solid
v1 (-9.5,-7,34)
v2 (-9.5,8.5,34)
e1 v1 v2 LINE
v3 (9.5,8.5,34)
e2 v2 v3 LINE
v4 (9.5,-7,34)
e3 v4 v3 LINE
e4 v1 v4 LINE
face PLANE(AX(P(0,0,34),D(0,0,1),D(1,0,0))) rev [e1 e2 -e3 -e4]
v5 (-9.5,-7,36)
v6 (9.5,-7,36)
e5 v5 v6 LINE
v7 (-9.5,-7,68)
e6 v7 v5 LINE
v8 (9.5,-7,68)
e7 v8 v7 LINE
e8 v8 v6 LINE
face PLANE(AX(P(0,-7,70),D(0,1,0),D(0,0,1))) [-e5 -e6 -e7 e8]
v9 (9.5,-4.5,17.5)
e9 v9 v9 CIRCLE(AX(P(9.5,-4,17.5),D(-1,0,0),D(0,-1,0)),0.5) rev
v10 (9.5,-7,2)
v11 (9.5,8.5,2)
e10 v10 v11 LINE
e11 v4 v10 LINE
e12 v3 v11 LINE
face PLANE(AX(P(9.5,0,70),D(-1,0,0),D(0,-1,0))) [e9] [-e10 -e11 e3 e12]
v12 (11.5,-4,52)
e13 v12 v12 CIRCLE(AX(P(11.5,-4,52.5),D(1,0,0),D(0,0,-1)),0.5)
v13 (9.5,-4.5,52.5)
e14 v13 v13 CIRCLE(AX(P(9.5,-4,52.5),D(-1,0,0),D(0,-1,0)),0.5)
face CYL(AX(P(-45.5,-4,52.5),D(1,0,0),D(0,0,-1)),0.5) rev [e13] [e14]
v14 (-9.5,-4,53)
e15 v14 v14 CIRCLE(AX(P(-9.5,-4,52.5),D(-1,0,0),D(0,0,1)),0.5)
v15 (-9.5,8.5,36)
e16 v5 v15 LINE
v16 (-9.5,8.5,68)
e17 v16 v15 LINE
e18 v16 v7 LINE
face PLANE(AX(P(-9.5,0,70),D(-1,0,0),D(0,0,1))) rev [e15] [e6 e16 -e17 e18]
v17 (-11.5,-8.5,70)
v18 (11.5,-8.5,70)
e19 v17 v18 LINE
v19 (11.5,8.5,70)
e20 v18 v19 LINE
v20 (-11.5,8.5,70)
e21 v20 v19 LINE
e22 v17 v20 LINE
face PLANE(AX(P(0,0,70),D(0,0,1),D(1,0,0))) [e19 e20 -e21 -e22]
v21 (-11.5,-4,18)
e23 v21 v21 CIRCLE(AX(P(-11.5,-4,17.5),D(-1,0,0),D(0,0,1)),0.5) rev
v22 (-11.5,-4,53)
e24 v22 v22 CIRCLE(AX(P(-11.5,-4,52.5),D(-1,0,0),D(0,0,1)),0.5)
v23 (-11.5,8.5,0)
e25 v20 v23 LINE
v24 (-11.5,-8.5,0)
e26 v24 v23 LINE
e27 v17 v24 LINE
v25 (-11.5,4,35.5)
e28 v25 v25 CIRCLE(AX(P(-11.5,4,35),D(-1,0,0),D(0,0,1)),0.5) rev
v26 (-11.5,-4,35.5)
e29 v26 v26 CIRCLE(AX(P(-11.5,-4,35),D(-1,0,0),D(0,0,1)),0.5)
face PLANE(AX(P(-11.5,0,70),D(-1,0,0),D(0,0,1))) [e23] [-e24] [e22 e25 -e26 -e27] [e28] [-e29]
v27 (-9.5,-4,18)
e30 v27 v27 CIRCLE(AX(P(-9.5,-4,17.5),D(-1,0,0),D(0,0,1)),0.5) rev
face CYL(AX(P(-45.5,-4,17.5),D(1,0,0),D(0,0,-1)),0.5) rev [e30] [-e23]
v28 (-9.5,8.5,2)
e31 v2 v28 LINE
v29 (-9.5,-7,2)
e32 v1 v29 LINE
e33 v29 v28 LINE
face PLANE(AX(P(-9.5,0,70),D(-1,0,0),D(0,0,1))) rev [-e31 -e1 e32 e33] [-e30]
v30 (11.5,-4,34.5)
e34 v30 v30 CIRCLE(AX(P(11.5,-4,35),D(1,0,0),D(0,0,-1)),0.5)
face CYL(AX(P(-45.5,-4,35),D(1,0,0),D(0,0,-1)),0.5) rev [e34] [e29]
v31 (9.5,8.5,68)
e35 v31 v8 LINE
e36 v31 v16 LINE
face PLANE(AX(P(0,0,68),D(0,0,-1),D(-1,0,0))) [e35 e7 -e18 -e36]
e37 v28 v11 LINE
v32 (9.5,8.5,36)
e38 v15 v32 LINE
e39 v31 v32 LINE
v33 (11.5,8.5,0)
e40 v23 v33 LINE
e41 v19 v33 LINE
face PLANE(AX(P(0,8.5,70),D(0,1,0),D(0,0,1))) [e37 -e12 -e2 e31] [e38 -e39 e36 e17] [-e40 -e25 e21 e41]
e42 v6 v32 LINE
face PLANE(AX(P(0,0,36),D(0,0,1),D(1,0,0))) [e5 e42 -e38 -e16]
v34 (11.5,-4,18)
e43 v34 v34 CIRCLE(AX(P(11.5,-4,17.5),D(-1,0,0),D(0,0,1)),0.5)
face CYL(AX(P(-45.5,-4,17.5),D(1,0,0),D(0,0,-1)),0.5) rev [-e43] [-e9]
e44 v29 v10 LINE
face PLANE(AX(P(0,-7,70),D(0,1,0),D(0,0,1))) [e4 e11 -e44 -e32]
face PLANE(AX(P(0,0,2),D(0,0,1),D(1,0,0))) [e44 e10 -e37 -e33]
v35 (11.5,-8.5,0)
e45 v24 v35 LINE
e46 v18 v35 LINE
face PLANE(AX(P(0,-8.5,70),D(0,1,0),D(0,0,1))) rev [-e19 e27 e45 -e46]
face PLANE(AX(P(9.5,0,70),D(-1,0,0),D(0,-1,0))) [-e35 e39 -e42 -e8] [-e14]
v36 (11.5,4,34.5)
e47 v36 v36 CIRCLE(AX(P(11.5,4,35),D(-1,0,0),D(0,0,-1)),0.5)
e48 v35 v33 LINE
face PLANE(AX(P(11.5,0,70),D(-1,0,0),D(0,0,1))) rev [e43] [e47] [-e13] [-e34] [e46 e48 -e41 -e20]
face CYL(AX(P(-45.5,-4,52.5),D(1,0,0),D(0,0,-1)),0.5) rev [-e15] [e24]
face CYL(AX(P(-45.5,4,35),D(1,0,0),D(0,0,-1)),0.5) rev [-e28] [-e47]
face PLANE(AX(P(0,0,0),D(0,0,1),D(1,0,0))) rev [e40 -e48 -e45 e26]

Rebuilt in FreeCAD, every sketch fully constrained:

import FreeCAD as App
import Part
import Sketcher

V = App.Vector

doc = App.newDocument("Part")
body = doc.addObject("PartDesign::Body", "Body")

# Sketch on XY plane
sketch1 = body.newObject("Sketcher::SketchObject", "Sketch")
sketch1.AttachmentSupport = (doc.getObject("XY_Plane"), [""])
sketch1.MapMode = "FlatFace"
sketch1.addGeometry([
    Part.LineSegment(V(-11.5, 8.5, 0), V(-11.5, -8.5, 0)),  # 0
    Part.LineSegment(V(-11.5, -8.5, 0), V(11.5, -8.5, 0)),  # 1
    Part.LineSegment(V(11.5, -8.5, 0), V(11.5, 8.5, 0)),  # 2
    Part.LineSegment(V(11.5, 8.5, 0), V(9.5, 8.5, 0)),  # 3
    Part.LineSegment(V(9.5, 8.5, 0), V(9.5, -7, 0)),  # 4
    Part.LineSegment(V(9.5, -7, 0), V(-9.5, -7, 0)),  # 5
    Part.LineSegment(V(-9.5, -7, 0), V(-9.5, 8.5, 0)),  # 6
    Part.LineSegment(V(-9.5, 8.5, 0), V(-11.5, 8.5, 0)),  # 7
], False)
sketch1.addConstraint([
    Sketcher.Constraint("Coincident", 0, 2, 1, 1),
    Sketcher.Constraint("Coincident", 1, 2, 2, 1),
    Sketcher.Constraint("Coincident", 2, 2, 3, 1),
    Sketcher.Constraint("Coincident", 3, 2, 4, 1),
    Sketcher.Constraint("Coincident", 4, 2, 5, 1),
    Sketcher.Constraint("Coincident", 5, 2, 6, 1),
    Sketcher.Constraint("Coincident", 6, 2, 7, 1),
    Sketcher.Constraint("Coincident", 7, 2, 0, 1),
    Sketcher.Constraint("Vertical", 0),
    Sketcher.Constraint("Horizontal", 1),
    Sketcher.Constraint("Vertical", 2),
    Sketcher.Constraint("Horizontal", 3),
    Sketcher.Constraint("Vertical", 4),
    Sketcher.Constraint("Horizontal", 5),
    Sketcher.Constraint("Vertical", 6),
    Sketcher.Constraint("Horizontal", 7),
    Sketcher.Constraint("Symmetric", 0, 2, 2, 2, -1, 1),
    Sketcher.Constraint("Symmetric", 3, 2, 6, 2, -2),
    Sketcher.Constraint("DistanceX", 1, 1, 1, 2, 23.0),
    Sketcher.Constraint("DistanceX", 3, 2, 3, 1, 2.0),
    Sketcher.Constraint("DistanceY", 0, 2, 0, 1, 17.0),
    Sketcher.Constraint("DistanceY", 4, 2, 4, 1, 15.5),
])
pad1 = body.newObject("PartDesign::Pad", "Pad")
pad1.Profile = sketch1
pad1.Length = 70

# Sketch on XY plane
sketch2 = body.newObject("Sketcher::SketchObject", "Sketch001")
sketch2.AttachmentSupport = (doc.getObject("XY_Plane"), [""])
sketch2.MapMode = "FlatFace"
sketch2.AttachmentOffset = App.Placement(V(0, 0, 70), App.Rotation())
sketch2.addGeometry([
    Part.LineSegment(V(-12, 8, 0), V(-12, -8, 0)),
    Part.LineSegment(V(-12, -8, 0), V(12, -8, 0)),
    Part.LineSegment(V(12, -8, 0), V(12, 8, 0)),
    Part.LineSegment(V(12, 8, 0), V(-12, 8, 0)),
], False)
sketch2.addConstraint([
    Sketcher.Constraint("Coincident", 0, 2, 1, 1),
    Sketcher.Constraint("Coincident", 1, 2, 2, 1),
    Sketcher.Constraint("Coincident", 2, 2, 3, 1),
    Sketcher.Constraint("Coincident", 3, 2, 0, 1),
    Sketcher.Constraint("Vertical", 0),
    Sketcher.Constraint("Horizontal", 1),
    Sketcher.Constraint("Vertical", 2),
    Sketcher.Constraint("Horizontal", 3),
    Sketcher.Constraint("Symmetric", 0, 2, 2, 2, -1, 1),
    Sketcher.Constraint("DistanceX", 1, 1, 1, 2, 23.0),
    Sketcher.Constraint("DistanceY", 0, 2, 0, 1, 17.0),
])
pad2 = body.newObject("PartDesign::Pad", "Pad001")
pad2.Profile = sketch2
pad2.Length = 2
pad2.Reversed = True

# Sketch on XY plane
sketch3 = body.newObject("Sketcher::SketchObject", "Sketch002")
sketch3.AttachmentSupport = (doc.getObject("XY_Plane"), [""])
sketch3.MapMode = "FlatFace"
sketch3.addGeometry([
    Part.LineSegment(V(12, 8, 0), V(12, -8, 0)),
    Part.LineSegment(V(12, -8, 0), V(-12, -8, 0)),
    Part.LineSegment(V(-12, -8, 0), V(-12, 8, 0)),
    Part.LineSegment(V(-12, 8, 0), V(12, 8, 0)),
], False)
sketch3.addConstraint([
    Sketcher.Constraint("Coincident", 0, 2, 1, 1),
    Sketcher.Constraint("Coincident", 1, 2, 2, 1),
    Sketcher.Constraint("Coincident", 2, 2, 3, 1),
    Sketcher.Constraint("Coincident", 3, 2, 0, 1),
    Sketcher.Constraint("Vertical", 0),
    Sketcher.Constraint("Horizontal", 1),
    Sketcher.Constraint("Vertical", 2),
    Sketcher.Constraint("Horizontal", 3),
    Sketcher.Constraint("Symmetric", 0, 2, 2, 2, -1, 1),
    Sketcher.Constraint("DistanceX", 1, 2, 1, 1, 23.0),
    Sketcher.Constraint("DistanceY", 0, 2, 0, 1, 17.0),
])
pad3 = body.newObject("PartDesign::Pad", "Pad002")
pad3.Profile = sketch3
pad3.Length = 2

# Sketch on XY plane
sketch4 = body.newObject("Sketcher::SketchObject", "Sketch003")
sketch4.AttachmentSupport = (doc.getObject("XY_Plane"), [""])
sketch4.MapMode = "FlatFace"
sketch4.AttachmentOffset = App.Placement(V(0, 0, 35), App.Rotation())
sketch4.addGeometry([
    Part.LineSegment(V(12, 8, 0), V(12, -8, 0)),
    Part.LineSegment(V(12, -8, 0), V(-12, -8, 0)),
    Part.LineSegment(V(-12, -8, 0), V(-12, 8, 0)),
    Part.LineSegment(V(-12, 8, 0), V(12, 8, 0)),
], False)
sketch4.addConstraint([
    Sketcher.Constraint("Coincident", 0, 2, 1, 1),
    Sketcher.Constraint("Coincident", 1, 2, 2, 1),
    Sketcher.Constraint("Coincident", 2, 2, 3, 1),
    Sketcher.Constraint("Coincident", 3, 2, 0, 1),
    Sketcher.Constraint("Vertical", 0),
    Sketcher.Constraint("Horizontal", 1),
    Sketcher.Constraint("Vertical", 2),
    Sketcher.Constraint("Horizontal", 3),
    Sketcher.Constraint("Symmetric", 0, 2, 2, 2, -1, 1),
    Sketcher.Constraint("DistanceX", 1, 2, 1, 1, 23.0),
    Sketcher.Constraint("DistanceY", 0, 2, 0, 1, 17.0),
])
pad4 = body.newObject("PartDesign::Pad", "Pad003")
pad4.Profile = sketch4
pad4.Type = "TwoLengths"
pad4.Length = 1
pad4.Length2 = 1
pad4.Reversed = True

# Sketch on YZ plane
sketch5 = body.newObject("Sketcher::SketchObject", "Sketch004")
sketch5.AttachmentSupport = (doc.getObject("YZ_Plane"), [""])
sketch5.MapMode = "FlatFace"
sketch5.AttachmentOffset = App.Placement(V(0, 0, 11.5), App.Rotation())
sketch5.addGeometry(Part.Circle(V(-4, 35, 0), V(0, 0, 1), 0.5), False)
sketch5.addConstraint([
    Sketcher.Constraint("Diameter", 0, 1.0),
    Sketcher.Constraint("DistanceX", 0, 3, -1, 1, 4.0),
    Sketcher.Constraint("DistanceY", -1, 1, 0, 3, 35.0),
])
pocket1 = body.newObject("PartDesign::Pocket", "Pocket")
pocket1.Profile = sketch5
pocket1.Length = 57

# Sketch on YZ plane
sketch6 = body.newObject("Sketcher::SketchObject", "Sketch005")
sketch6.AttachmentSupport = (doc.getObject("YZ_Plane"), [""])
sketch6.MapMode = "FlatFace"
sketch6.AttachmentOffset = App.Placement(V(0, 0, 11.5), App.Rotation())
sketch6.addGeometry(Part.Circle(V(-4, 52.5, 0), V(0, 0, 1), 0.5), False)
sketch6.addConstraint([
    Sketcher.Constraint("Diameter", 0, 1.0),
    Sketcher.Constraint("DistanceX", 0, 3, -1, 1, 4.0),
    Sketcher.Constraint("DistanceY", -1, 1, 0, 3, 52.5),
])
pocket2 = body.newObject("PartDesign::Pocket", "Pocket001")
pocket2.Profile = sketch6
pocket2.Length = 57
doc.recompute()

datumplane = body.newObject("PartDesign::Plane", "DatumPlane")
datumplane.AttachmentSupport = (doc.getObject("XY_Plane"), [""])
datumplane.MapMode = "FlatFace"
datumplane.AttachmentOffset = App.Placement(V(0, 0, 35), App.Rotation())
mirrored = body.newObject("PartDesign::Mirrored", "Mirrored")
mirrored.Originals = [pocket2]
mirrored.MirrorPlane = (datumplane, [""])
body.Tip = mirrored
doc.recompute()

mirrored2 = body.newObject("PartDesign::Mirrored", "Mirrored001")
mirrored2.Originals = [pocket1]
mirrored2.MirrorPlane = (doc.getObject("XZ_Plane"), [""])
body.Tip = mirrored2

doc.recompute()
